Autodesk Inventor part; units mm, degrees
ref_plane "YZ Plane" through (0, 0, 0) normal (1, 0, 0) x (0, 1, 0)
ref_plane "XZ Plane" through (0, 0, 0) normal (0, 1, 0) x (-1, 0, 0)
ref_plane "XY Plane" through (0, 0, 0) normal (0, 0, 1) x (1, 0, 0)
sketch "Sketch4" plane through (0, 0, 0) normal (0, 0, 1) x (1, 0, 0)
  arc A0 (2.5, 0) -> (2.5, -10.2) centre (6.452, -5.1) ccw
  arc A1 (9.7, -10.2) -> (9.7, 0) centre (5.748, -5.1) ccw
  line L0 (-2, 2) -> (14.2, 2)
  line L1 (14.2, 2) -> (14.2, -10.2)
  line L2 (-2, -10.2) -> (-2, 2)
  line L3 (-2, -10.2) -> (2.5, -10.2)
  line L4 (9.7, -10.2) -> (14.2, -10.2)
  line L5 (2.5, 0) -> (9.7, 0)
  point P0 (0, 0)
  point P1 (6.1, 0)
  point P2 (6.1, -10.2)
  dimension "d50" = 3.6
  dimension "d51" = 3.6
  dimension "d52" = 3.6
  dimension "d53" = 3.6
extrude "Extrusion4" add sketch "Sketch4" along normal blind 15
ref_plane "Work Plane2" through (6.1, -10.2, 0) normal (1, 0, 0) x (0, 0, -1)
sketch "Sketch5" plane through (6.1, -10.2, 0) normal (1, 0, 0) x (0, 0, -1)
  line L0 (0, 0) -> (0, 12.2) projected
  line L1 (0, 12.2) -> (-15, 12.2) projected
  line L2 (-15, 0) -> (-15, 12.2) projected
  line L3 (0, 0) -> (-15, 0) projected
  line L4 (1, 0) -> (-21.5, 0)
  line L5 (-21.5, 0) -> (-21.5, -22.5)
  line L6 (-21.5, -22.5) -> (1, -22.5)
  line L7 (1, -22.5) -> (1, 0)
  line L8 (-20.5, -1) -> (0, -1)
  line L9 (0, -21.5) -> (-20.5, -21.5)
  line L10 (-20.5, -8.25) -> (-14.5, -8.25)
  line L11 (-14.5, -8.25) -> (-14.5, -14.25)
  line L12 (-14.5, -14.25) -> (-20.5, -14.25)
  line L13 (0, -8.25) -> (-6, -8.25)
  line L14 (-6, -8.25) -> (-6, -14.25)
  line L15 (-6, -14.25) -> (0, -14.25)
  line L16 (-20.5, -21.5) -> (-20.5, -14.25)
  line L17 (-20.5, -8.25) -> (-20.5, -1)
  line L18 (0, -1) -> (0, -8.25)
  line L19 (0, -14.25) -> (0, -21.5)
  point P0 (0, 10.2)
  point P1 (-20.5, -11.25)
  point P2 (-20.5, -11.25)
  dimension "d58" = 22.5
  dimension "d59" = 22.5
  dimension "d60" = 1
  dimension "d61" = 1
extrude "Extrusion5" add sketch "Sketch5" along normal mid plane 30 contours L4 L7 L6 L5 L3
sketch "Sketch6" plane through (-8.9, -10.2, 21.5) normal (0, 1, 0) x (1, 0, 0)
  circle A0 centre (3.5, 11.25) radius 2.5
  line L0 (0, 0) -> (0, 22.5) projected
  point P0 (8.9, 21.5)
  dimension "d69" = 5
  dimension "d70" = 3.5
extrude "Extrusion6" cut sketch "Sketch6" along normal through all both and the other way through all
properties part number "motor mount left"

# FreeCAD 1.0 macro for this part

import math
import FreeCAD as App
import Part
import Sketcher
from FreeCAD import Vector


def add_polygon(sketch, points):
    """Adds a closed chain of lines whose ends are joined by coincident constraints."""
    first, n = sketch.GeometryCount, len(points)
    for a, b in zip(points, points[1:] + points[:1]):
        sketch.addGeometry(Part.LineSegment(App.Vector(*a, 0), App.Vector(*b, 0)), False)
    for i in range(n):
        sketch.addConstraint(Sketcher.Constraint("Coincident", first + i, 2, first + (i + 1) % n, 1))

doc = App.newDocument("Part")
body = doc.addObject("PartDesign::Body", "Body")

# Sketch on XY plane
sketch1 = doc.addObject("Sketcher::SketchObject", "Sketch")
body.addObject(sketch1)
sketch1.AttachmentSupport = (doc.XY_Plane, [""])
sketch1.MapMode = "FlatFace"
sketch1.addGeometry([
    Part.ArcOfCircle(Part.Circle(Vector(6.452, -5.1, 0), Vector(0, 0, 1), 6.452), math.radians(127.772175), math.radians(232.227825)),  # 0
    Part.LineSegment(Vector(2.5, 0, 0), Vector(9.7, 0, 0)),  # 1
    Part.ArcOfCircle(Part.Circle(Vector(5.748, -5.1, 0), Vector(0, 0, 1), 6.452), math.radians(-52.227825), math.radians(52.227825)),  # 2
    Part.LineSegment(Vector(9.7, -10.2, 0), Vector(14.2, -10.2, 0)),  # 3
    Part.LineSegment(Vector(14.2, -10.2, 0), Vector(14.2, 2, 0)),  # 4
    Part.LineSegment(Vector(14.2, 2, 0), Vector(-2, 2, 0)),  # 5
    Part.LineSegment(Vector(-2, 2, 0), Vector(-2, -10.2, 0)),  # 6
    Part.LineSegment(Vector(-2, -10.2, 0), Vector(2.5, -10.2, 0)),  # 7
], False)
sketch1.addConstraint([
    Sketcher.Constraint("Coincident", 0, 1, 1, 1),
    Sketcher.Constraint("Coincident", 1, 2, 2, 2),
    Sketcher.Constraint("Coincident", 2, 1, 3, 1),
    Sketcher.Constraint("Coincident", 3, 2, 4, 1),
    Sketcher.Constraint("Coincident", 4, 2, 5, 1),
    Sketcher.Constraint("Coincident", 5, 2, 6, 1),
    Sketcher.Constraint("Coincident", 6, 2, 7, 1),
    Sketcher.Constraint("Coincident", 7, 2, 0, 2),
    Sketcher.Constraint("Horizontal", 1),
    Sketcher.Constraint("Horizontal", 3),
    Sketcher.Constraint("Vertical", 4),
    Sketcher.Constraint("Horizontal", 5),
    Sketcher.Constraint("Vertical", 6),
    Sketcher.Constraint("Horizontal", 7),
    Sketcher.Constraint("Equal", 0, 2),
    Sketcher.Constraint("PointOnObject", 0, 1, -1),
    Sketcher.Constraint("Horizontal", 0, 3, 2, 3),
    Sketcher.Constraint("Horizontal", 3, 2, 6, 2),
    Sketcher.Constraint("Vertical", 1, 2, 2, 1),
    Sketcher.Constraint("Equal", 3, 7),
    Sketcher.Constraint("DistanceX", 1, 1, 1, 2, 7.2),
    Sketcher.Constraint("DistanceX", 3, 1, 3, 2, 4.5),
    Sketcher.Constraint("DistanceY", 4, 1, 4, 2, 12.2),
    Sketcher.Constraint("DistanceY", -1, 1, 4, 2, 2.0),
    Sketcher.Constraint("DistanceX", 5, 2, -1, 1, 2.0),
    Sketcher.Constraint("Radius", 0, 6.452),
])
pad1 = doc.addObject("PartDesign::Pad", "Pad")
body.addObject(pad1)
pad1.Profile = sketch1
pad1.Length = 15

# Sketch on YZ plane
sketch2 = doc.addObject("Sketcher::SketchObject", "Sketch001")
body.addObject(sketch2)
sketch2.AttachmentSupport = (doc.YZ_Plane, [""])
sketch2.MapMode = "FlatFace"
sketch2.AttachmentOffset = App.Placement(Vector(0, 0, 6.1), App.Rotation())
add_polygon(sketch2, [(-10.2, -1), (-10.2, 21.5), (-32.7, 21.5), (-32.7, -1)])  # lines 0-3
add_polygon(sketch2, [(-18.45, 20.5), (-11.2, 20.5), (-11.2, 0), (-18.45, 0), (-18.45, 6), (-24.45, 6), (-24.45, 0), (-31.7, 0), (-31.7, 20.5), (-24.45, 20.5), (-24.45, 14.5), (-18.45, 14.5)])  # lines 4-15
sketch2.addConstraint([
    Sketcher.Constraint("Vertical", 0),
    Sketcher.Constraint("Horizontal", 1),
    Sketcher.Constraint("Vertical", 2),
    Sketcher.Constraint("Horizontal", 3),
    Sketcher.Constraint("Horizontal", 4),
    Sketcher.Constraint("Vertical", 5),
    Sketcher.Constraint("Horizontal", 6),
    Sketcher.Constraint("Vertical", 7),
    Sketcher.Constraint("Horizontal", 8),
    Sketcher.Constraint("Vertical", 9),
    Sketcher.Constraint("Horizontal", 10),
    Sketcher.Constraint("Vertical", 11),
    Sketcher.Constraint("Horizontal", 12),
    Sketcher.Constraint("Vertical", 13),
    Sketcher.Constraint("Horizontal", 14),
    Sketcher.Constraint("Vertical", 15),
    Sketcher.Constraint("PointOnObject", 5, 2, -1),
    Sketcher.Constraint("PointOnObject", 9, 2, -1),
    Sketcher.Constraint("Horizontal", 4, 2, 11, 2),
    Sketcher.Constraint("Vertical", 9, 2, 12, 2),
    Sketcher.Constraint("Vertical", 7, 2, 14, 2),
    Sketcher.Constraint("Equal", 6, 10),
    Sketcher.Constraint("Equal", 3, 0),
    Sketcher.Constraint("Equal", 14, 7),
    Sketcher.Constraint("Equal", 9, 13),
    Sketcher.Constraint("DistanceX", 1, 2, 1, 1, 22.5),
    Sketcher.Constraint("DistanceY", 2, 2, -1, 1, 1.0),
    Sketcher.Constraint("DistanceX", 4, 2, 0, 2, 1.0),
    Sketcher.Constraint("DistanceY", 4, 2, 0, 2, 1.0),
    Sketcher.Constraint("DistanceX", 2, 2, 10, 2, 1.0),
    Sketcher.Constraint("DistanceX", 8, 2, 8, 1, 6.0),
    Sketcher.Constraint("DistanceX", 0, 2, -1, 1, 10.2),
])
pad2 = doc.addObject("PartDesign::Pad", "Pad001")
body.addObject(pad2)
pad2.Profile = sketch2
pad2.Length = 30
pad2.Midplane = True

# Sketch on XZ plane
sketch3 = doc.addObject("Sketcher::SketchObject", "Sketch002")
body.addObject(sketch3)
sketch3.AttachmentSupport = (doc.XZ_Plane, [""])
sketch3.MapMode = "FlatFace"
sketch3.AttachmentOffset = App.Placement(Vector(0, 0, 10.2), App.Rotation())
sketch3.addGeometry(Part.Circle(Vector(-5.4, 10.25, 0), Vector(0, 0, 1), 2.5), False)
sketch3.addConstraint([
    Sketcher.Constraint("Diameter", 0, 5.0),
    Sketcher.Constraint("DistanceX", 0, 3, -1, 1, 5.4),
    Sketcher.Constraint("DistanceY", -1, 1, 0, 3, 10.25),
])
pocket1 = doc.addObject("PartDesign::Pocket", "Pocket")
body.addObject(pocket1)
pocket1.Profile = sketch3
pocket1.Type = "ThroughAll"
pocket1.Midplane = True

doc.recompute()
